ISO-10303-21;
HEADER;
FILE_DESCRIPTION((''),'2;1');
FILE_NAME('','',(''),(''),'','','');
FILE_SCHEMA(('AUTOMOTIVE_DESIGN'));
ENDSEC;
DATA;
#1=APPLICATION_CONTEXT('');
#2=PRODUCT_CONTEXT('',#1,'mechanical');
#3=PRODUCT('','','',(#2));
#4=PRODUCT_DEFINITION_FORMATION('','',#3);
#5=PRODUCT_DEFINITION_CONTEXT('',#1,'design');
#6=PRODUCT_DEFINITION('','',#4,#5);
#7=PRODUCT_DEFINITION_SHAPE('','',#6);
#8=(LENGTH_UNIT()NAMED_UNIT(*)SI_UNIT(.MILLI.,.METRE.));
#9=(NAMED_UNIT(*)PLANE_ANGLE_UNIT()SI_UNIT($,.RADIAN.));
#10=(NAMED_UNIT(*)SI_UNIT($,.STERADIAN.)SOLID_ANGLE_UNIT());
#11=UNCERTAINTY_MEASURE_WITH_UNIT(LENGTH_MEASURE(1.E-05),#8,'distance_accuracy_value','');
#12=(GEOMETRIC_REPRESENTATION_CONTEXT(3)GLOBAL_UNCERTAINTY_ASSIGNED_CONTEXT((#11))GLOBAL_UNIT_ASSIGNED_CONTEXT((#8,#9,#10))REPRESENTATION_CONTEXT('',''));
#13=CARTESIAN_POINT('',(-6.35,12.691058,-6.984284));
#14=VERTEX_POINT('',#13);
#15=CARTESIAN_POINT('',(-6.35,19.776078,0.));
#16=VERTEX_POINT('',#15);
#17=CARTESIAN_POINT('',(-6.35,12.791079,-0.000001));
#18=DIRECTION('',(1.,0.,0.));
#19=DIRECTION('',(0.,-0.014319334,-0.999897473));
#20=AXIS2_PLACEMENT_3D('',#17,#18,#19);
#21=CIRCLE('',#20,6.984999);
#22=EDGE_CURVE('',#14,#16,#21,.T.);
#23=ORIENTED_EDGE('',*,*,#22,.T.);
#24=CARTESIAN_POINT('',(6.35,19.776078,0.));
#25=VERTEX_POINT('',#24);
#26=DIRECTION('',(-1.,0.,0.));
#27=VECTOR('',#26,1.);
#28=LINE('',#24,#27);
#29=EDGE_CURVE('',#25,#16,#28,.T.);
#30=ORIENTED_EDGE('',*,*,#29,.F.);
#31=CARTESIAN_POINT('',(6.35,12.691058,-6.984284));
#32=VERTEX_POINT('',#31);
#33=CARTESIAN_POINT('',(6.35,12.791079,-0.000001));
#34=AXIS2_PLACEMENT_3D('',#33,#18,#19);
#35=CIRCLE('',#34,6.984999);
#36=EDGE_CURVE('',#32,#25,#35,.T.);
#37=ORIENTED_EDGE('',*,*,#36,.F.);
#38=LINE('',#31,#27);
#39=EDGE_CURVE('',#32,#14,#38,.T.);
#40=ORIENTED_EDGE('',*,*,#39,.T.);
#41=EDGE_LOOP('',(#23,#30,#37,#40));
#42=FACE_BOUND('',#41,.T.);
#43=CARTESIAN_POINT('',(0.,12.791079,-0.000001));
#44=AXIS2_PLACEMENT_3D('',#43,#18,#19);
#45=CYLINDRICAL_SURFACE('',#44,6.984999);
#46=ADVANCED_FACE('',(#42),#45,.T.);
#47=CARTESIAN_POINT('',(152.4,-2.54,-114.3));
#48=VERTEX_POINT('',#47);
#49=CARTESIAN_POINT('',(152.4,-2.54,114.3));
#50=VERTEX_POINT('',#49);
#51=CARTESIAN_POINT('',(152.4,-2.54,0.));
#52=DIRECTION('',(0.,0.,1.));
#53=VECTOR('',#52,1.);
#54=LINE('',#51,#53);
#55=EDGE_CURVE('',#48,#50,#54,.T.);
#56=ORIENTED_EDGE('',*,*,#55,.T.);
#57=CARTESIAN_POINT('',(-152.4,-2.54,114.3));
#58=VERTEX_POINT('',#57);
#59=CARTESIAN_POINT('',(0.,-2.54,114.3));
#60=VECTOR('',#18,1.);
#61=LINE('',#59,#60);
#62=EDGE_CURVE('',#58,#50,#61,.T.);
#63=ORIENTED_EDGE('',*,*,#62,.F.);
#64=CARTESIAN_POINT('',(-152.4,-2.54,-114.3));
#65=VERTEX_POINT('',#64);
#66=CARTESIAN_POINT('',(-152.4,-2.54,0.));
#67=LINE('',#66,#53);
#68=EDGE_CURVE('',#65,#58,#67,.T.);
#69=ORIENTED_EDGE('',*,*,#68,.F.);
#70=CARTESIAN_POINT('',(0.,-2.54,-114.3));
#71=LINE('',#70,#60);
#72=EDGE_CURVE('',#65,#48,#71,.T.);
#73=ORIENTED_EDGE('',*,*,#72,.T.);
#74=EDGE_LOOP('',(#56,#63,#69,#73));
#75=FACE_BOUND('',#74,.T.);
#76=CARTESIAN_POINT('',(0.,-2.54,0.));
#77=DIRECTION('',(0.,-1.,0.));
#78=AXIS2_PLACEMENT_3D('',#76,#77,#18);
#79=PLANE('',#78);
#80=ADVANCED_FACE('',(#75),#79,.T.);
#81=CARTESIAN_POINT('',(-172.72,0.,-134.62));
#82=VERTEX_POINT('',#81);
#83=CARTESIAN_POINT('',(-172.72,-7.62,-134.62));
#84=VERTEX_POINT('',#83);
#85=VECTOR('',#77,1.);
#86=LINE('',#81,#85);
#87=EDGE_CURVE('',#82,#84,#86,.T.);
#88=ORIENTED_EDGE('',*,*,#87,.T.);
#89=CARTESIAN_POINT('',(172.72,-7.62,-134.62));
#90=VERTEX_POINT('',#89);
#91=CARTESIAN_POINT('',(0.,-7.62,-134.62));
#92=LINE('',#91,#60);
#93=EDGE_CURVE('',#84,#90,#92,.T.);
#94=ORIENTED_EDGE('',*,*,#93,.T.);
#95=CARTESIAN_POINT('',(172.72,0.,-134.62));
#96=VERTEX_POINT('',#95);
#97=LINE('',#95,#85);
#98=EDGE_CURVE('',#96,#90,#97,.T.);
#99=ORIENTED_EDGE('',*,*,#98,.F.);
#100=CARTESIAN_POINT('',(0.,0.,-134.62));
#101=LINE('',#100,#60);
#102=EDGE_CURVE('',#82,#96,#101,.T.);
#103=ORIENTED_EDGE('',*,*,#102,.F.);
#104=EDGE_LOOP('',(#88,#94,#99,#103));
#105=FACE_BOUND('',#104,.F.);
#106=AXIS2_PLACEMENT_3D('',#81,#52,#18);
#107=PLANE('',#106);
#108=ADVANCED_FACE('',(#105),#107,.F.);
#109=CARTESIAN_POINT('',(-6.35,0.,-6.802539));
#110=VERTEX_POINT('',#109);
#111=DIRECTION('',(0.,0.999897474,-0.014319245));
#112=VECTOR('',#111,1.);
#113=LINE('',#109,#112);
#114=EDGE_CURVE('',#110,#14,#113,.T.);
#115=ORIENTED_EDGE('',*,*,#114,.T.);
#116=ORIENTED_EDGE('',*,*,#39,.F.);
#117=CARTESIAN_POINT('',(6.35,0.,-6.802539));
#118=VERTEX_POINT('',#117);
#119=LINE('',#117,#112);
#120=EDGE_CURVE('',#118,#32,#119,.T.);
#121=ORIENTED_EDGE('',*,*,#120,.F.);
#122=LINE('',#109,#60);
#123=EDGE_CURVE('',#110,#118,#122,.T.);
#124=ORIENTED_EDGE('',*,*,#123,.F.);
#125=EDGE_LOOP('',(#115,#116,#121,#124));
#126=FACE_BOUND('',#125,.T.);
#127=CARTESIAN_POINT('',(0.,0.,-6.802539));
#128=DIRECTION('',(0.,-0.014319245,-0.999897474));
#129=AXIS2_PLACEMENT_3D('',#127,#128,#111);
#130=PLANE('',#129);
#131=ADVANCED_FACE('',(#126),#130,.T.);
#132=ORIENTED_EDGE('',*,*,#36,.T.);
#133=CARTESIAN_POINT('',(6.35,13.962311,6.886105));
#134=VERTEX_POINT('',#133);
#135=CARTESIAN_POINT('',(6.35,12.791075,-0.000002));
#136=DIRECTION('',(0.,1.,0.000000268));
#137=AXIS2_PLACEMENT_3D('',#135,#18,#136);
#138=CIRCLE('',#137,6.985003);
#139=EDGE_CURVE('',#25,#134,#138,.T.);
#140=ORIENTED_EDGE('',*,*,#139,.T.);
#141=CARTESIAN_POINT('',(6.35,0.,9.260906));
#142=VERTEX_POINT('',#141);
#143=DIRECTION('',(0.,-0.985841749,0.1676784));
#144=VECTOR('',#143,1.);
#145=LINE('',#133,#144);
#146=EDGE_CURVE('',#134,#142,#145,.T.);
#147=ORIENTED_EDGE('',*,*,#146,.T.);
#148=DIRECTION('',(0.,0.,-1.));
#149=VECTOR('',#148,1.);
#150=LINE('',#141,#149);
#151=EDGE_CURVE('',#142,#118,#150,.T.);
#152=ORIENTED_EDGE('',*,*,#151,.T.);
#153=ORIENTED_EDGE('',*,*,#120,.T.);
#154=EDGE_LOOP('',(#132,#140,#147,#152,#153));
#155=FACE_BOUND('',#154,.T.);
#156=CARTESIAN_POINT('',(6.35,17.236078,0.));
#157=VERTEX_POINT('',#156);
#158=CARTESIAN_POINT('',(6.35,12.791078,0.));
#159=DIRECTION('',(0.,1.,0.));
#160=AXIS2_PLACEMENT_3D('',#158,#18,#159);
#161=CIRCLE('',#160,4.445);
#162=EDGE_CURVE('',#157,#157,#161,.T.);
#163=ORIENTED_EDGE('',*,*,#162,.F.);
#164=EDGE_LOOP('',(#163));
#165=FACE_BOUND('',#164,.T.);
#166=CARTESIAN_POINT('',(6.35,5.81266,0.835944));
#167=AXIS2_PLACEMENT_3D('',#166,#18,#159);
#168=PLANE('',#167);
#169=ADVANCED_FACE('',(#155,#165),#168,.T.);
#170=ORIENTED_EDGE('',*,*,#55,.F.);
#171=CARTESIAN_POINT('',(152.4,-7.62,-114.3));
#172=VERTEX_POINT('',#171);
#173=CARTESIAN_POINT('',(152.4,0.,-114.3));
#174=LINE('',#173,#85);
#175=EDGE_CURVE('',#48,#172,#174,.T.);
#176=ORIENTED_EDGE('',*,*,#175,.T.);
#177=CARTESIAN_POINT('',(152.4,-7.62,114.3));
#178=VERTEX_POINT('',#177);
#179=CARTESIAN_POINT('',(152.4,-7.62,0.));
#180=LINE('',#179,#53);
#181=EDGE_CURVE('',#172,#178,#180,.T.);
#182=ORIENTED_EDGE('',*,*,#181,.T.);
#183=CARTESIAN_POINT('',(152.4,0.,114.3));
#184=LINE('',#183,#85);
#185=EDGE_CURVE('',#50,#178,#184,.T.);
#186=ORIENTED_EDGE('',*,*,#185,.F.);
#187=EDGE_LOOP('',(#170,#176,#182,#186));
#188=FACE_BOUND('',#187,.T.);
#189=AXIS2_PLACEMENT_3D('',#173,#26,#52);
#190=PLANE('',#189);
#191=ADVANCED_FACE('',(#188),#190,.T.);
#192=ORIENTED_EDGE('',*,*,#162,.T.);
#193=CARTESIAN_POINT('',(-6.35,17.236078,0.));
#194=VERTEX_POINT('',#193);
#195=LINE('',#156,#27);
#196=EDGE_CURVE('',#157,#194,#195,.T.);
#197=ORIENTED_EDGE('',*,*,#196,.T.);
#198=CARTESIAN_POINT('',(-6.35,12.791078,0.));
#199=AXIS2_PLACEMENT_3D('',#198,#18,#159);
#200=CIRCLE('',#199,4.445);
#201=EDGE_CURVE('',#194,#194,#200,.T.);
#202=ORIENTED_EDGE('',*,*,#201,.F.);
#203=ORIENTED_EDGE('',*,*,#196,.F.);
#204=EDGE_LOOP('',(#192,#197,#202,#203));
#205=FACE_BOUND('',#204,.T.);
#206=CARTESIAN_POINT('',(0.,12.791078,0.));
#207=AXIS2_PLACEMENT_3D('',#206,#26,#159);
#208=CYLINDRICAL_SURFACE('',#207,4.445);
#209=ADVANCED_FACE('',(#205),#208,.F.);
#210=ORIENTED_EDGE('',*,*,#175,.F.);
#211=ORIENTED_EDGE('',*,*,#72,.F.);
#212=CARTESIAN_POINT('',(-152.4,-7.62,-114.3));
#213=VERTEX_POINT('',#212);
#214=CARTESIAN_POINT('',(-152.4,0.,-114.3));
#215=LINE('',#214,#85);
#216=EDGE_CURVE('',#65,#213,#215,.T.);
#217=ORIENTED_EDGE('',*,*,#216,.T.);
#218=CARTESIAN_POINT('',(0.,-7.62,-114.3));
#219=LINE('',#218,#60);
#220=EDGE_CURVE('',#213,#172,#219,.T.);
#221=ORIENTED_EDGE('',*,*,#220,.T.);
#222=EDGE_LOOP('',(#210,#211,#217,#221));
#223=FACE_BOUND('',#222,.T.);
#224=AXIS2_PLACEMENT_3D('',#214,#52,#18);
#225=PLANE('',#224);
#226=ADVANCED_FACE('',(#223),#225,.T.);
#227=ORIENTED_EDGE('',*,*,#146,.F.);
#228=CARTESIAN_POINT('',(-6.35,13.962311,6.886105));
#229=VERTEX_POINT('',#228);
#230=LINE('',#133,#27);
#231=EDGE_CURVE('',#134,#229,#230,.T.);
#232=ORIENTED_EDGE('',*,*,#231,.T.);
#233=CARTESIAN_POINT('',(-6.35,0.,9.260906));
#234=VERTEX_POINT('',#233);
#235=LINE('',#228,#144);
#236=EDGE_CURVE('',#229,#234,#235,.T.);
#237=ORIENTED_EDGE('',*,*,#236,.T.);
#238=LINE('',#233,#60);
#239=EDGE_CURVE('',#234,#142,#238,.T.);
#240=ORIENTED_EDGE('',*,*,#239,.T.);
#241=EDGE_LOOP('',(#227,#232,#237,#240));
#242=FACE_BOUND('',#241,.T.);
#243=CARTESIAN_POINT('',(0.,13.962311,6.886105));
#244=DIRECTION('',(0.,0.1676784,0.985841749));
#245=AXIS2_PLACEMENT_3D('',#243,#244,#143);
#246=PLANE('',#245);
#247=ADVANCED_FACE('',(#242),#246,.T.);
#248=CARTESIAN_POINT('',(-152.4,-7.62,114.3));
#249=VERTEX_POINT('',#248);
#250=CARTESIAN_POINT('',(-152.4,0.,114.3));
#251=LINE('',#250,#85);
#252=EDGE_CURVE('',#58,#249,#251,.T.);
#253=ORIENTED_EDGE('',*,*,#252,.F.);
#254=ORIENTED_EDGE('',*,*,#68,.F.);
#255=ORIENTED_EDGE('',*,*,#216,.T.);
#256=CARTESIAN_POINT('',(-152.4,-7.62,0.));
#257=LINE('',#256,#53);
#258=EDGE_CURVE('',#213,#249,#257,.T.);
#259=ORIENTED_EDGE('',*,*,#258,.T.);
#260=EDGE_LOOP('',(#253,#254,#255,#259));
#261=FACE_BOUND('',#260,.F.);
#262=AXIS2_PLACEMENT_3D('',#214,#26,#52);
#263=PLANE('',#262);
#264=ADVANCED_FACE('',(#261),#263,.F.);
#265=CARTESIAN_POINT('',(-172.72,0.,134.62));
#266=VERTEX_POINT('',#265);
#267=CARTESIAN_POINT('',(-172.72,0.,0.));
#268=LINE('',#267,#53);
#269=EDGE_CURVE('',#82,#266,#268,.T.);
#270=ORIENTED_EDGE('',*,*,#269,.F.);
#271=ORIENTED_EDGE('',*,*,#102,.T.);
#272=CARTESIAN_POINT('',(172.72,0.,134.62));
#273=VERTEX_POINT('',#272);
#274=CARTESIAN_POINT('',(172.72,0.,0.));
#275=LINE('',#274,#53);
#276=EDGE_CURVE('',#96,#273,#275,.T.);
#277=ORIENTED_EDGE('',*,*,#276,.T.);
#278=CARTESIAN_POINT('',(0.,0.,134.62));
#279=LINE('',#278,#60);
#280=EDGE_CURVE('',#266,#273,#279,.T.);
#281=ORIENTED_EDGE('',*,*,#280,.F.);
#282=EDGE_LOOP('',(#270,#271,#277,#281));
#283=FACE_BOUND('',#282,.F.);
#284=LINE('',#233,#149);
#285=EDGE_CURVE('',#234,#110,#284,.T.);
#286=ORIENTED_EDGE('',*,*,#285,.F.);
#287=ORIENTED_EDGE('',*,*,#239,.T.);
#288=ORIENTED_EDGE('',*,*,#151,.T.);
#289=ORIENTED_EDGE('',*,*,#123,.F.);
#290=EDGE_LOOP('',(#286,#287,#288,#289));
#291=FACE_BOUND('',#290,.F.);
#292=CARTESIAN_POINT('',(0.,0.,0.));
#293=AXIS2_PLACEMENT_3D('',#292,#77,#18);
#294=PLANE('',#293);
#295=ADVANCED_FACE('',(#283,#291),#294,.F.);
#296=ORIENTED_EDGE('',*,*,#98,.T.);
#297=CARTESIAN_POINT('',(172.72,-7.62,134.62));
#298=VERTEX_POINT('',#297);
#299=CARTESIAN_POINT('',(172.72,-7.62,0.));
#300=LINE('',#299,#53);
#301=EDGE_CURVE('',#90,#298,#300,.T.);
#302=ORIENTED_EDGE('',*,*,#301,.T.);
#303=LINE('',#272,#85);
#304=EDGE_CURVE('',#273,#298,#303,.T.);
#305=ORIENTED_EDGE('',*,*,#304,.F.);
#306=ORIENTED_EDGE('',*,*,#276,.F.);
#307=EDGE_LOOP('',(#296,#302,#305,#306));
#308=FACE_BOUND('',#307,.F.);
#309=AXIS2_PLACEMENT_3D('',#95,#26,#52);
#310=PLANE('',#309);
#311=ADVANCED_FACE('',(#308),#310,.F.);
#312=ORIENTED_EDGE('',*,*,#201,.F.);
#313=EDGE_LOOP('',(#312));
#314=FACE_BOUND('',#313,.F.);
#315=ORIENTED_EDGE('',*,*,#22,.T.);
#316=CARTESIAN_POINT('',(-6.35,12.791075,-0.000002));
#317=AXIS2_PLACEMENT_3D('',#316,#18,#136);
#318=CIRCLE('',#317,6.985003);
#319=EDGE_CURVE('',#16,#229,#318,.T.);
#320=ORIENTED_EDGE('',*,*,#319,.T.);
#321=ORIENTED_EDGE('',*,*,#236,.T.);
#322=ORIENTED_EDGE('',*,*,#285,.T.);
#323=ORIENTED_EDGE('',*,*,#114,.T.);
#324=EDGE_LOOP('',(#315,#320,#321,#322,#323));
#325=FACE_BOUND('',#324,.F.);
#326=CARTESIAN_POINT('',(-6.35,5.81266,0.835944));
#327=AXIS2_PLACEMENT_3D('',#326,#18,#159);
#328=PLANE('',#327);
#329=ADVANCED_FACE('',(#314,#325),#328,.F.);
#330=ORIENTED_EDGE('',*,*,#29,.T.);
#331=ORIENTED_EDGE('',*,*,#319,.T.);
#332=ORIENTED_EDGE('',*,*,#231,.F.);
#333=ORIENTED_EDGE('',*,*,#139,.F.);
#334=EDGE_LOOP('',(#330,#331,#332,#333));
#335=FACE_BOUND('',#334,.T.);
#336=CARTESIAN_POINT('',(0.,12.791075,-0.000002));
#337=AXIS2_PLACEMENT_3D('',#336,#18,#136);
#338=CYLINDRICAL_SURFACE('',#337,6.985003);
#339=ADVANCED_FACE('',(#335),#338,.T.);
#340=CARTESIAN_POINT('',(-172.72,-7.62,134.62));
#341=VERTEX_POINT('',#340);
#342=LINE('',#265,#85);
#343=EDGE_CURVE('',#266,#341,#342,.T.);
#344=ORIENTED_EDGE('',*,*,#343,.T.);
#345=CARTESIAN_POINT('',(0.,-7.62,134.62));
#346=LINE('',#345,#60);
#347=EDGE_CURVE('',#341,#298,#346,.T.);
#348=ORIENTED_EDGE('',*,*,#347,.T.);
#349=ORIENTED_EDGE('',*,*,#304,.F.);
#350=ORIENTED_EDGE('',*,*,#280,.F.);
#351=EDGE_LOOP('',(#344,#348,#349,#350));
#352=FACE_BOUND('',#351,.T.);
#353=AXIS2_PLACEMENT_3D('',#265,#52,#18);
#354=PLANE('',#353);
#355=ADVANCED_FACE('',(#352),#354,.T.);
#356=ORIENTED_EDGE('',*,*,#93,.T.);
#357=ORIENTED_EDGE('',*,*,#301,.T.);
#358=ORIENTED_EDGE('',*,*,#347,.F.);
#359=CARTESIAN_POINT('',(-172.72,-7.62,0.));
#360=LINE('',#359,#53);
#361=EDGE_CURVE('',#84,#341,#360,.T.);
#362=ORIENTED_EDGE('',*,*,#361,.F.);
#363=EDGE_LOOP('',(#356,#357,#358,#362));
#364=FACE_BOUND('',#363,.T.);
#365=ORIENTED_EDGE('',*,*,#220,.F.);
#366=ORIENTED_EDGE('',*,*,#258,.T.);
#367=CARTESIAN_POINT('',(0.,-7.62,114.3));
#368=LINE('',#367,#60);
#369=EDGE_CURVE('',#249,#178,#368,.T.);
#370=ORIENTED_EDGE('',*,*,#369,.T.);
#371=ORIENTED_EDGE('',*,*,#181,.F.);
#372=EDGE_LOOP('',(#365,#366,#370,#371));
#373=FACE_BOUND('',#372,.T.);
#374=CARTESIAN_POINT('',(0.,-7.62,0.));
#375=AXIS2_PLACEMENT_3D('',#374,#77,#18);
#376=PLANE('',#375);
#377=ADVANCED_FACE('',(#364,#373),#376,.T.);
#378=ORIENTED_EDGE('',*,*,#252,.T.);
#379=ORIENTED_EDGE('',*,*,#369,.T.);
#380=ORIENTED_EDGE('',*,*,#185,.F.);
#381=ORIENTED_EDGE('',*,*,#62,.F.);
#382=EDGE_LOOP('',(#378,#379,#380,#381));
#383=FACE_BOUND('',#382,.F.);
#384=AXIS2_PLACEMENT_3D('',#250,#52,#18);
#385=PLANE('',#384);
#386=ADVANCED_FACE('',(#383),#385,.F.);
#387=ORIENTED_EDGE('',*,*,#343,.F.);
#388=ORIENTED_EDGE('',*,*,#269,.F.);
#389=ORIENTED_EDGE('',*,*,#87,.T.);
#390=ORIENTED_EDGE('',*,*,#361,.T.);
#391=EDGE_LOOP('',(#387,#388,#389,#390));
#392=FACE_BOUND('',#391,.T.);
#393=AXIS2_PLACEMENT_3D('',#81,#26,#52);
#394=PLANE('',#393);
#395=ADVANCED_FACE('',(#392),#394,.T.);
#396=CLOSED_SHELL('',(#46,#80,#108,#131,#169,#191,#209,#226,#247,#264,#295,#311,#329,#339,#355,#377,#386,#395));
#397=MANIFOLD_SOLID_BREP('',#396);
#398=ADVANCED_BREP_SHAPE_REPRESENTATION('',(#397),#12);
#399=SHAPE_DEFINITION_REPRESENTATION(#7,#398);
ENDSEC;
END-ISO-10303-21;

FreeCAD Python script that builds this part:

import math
import FreeCAD as App
import Part
import Sketcher
from FreeCAD import Vector
Q = App.Units.Quantity


def add_polygon(sketch, points):
    """Adds a closed chain of lines whose ends are joined by coincident constraints."""
    first, n = sketch.GeometryCount, len(points)
    for a, b in zip(points, points[1:] + points[:1]):
        sketch.addGeometry(Part.LineSegment(App.Vector(*a, 0), App.Vector(*b, 0)), False)
    for i in range(n):
        sketch.addConstraint(Sketcher.Constraint("Coincident", first + i, 2, first + (i + 1) % n, 1))

doc = App.newDocument("Part")
params = doc.addObject("Spreadsheet::Sheet", "Params")
for row, (alias, value) in enumerate([
    ("sketch1_width", "12 in"),
    ("sketch1_height", "9 in"),
    ("pad1_length", "0.1 in"),
    ("sketch2_width", "12 in"),
    ("sketch2_height", "9 in"),
    ("sketch2_width2", "13.6 in"),
    ("sketch2_height2", "10.6 in"),
    ("pad2_length", "0.3 in"),
    ("sketch3_diameter", "0.35 in"),
    ("sketch3_radius", "0.275 in"),
    ("sketch3_radius2", "0.2750001 in"),
    ("pad3_length", "0.5 in"),
], start=1):
    params.set(f"A{row}", alias)
    params.set(f"B{row}", "=" + value)
    params.setAlias(f"B{row}", alias)

body = doc.addObject("PartDesign::Body", "Body")

sketch1 = doc.addObject("Sketcher::SketchObject", "Sketch")
body.addObject(sketch1)
sketch1.AttachmentSupport = (doc.XZ_Plane, [""])
sketch1.MapMode = "FlatFace"
add_polygon(sketch1, [(-152.4, 114.3), (-152.4, -114.3), (152.4, -114.3), (152.4, 114.3)])
sketch1.addConstraint([
    Sketcher.Constraint("Vertical", 0),
    Sketcher.Constraint("Horizontal", 1),
    Sketcher.Constraint("Vertical", 2),
    Sketcher.Constraint("Horizontal", 3),
    Sketcher.Constraint("Symmetric", 0, 2, 2, 2, -1, 1),
    Sketcher.Constraint("DistanceX", 1, 1, 1, 2, Q("12 in")),
    Sketcher.Constraint("DistanceY", 0, 2, 0, 1, Q("9 in")),
])
sketch1.setExpression("Constraints[9]", "Params.sketch1_width")
sketch1.setExpression("Constraints[10]", "Params.sketch1_height")
pad1 = doc.addObject("PartDesign::Pad", "Pad")
body.addObject(pad1)
pad1.Profile = sketch1
pad1.setExpression("Length", "Params.pad1_length")

sketch2 = doc.addObject("Sketcher::SketchObject", "Sketch001")
body.addObject(sketch2)
sketch2.AttachmentSupport = (doc.XZ_Plane, [""])
sketch2.MapMode = "FlatFace"
add_polygon(sketch2, [(-172.72, 134.62), (-172.72, -134.62), (172.72, -134.62), (172.72, 134.62)])
add_polygon(sketch2, [(152.4, -114.3), (-152.4, -114.3), (-152.4, 114.3), (152.4, 114.3)])
sketch2.addConstraint([
    Sketcher.Constraint("Vertical", 0),
    Sketcher.Constraint("Horizontal", 1),
    Sketcher.Constraint("Vertical", 2),
    Sketcher.Constraint("Horizontal", 3),
    Sketcher.Constraint("Horizontal", 4),
    Sketcher.Constraint("Vertical", 5),
    Sketcher.Constraint("Horizontal", 6),
    Sketcher.Constraint("Vertical", 7),
    Sketcher.Constraint("Symmetric", 0, 2, 2, 2, -1, 1),
    Sketcher.Constraint("Symmetric", 4, 2, 6, 2, -1, 1),
    Sketcher.Constraint("DistanceX", 4, 2, 4, 1, Q("12 in")),
    Sketcher.Constraint("DistanceY", 5, 1, 5, 2, Q("9 in")),
    Sketcher.Constraint("DistanceX", 1, 1, 1, 2, Q("13.6 in")),
    Sketcher.Constraint("DistanceY", 0, 2, 0, 1, Q("10.6 in")),
])
sketch2.setExpression("Constraints[18]", "Params.sketch2_width")
sketch2.setExpression("Constraints[19]", "Params.sketch2_height")
sketch2.setExpression("Constraints[20]", "Params.sketch2_width2")
sketch2.setExpression("Constraints[21]", "Params.sketch2_height2")
pad2 = doc.addObject("PartDesign::Pad", "Pad001")
body.addObject(pad2)
pad2.Profile = sketch2
pad2.setExpression("Length", "Params.pad2_length")

sketch3 = doc.addObject("Sketcher::SketchObject", "Sketch002")
body.addObject(sketch3)
sketch3.AttachmentSupport = (doc.YZ_Plane, [""])
sketch3.MapMode = "FlatFace"
sketch3.addGeometry([
    Part.LineSegment(Vector(13.962311, 6.886105, 0), Vector(0, 9.260906, 0)),
    Part.LineSegment(Vector(0, 9.260906, 0), Vector(0, -6.802539, 0)),
    Part.LineSegment(Vector(0, -6.802539, 0), Vector(12.691058, -6.984284, 0)),
    Part.ArcOfCircle(Part.Circle(Vector(12.791079, -0.000001, 0), Vector(0, 0, 1), 6.984999), math.radians(-90.820465), math.radians(0.000006)),
    Part.ArcOfCircle(Part.Circle(Vector(12.791075, -0.000002, 0), Vector(0, 0, 1), 6.985003), math.radians(0.000015), math.radians(80.347124)),
    Part.Circle(Vector(12.791078, 0, 0), Vector(0, 0, 1), 4.445),
], False)
sketch3.addConstraint([
    Sketcher.Constraint("Coincident", 0, 2, 1, 1),
    Sketcher.Constraint("Coincident", 1, 2, 2, 1),
    Sketcher.Constraint("Tangent", 2, 2, 3, 1),
    Sketcher.Constraint("Tangent", 3, 2, 4, 1),
    Sketcher.Constraint("Tangent", 4, 2, 0, 1),
    Sketcher.Constraint("Vertical", 1),
    Sketcher.Constraint("Coincident", 5, 3, 3, 3),
    Sketcher.Constraint("PointOnObject", 3, 3, -1),
    Sketcher.Constraint("PointOnObject", 0, 2, -2),
    Sketcher.Constraint("PointOnObject", 3, 2, -1),
    Sketcher.Constraint("Diameter", 5, Q("0.35 in")),
    Sketcher.Constraint("Radius", 3, Q("0.275 in")),
    Sketcher.Constraint("Radius", 4, Q("0.2750001 in")),
    Sketcher.Constraint("Distance", 0, 14.162832),
    Sketcher.Constraint("Distance", 2, 12.692359),
    Sketcher.Constraint("DistanceY", 1, 2, 1, 1, 16.063445),
])
sketch3.setExpression("Constraints[10]", "Params.sketch3_diameter")
sketch3.setExpression("Constraints[11]", "Params.sketch3_radius")
sketch3.setExpression("Constraints[12]", "Params.sketch3_radius2")
pad3 = doc.addObject("PartDesign::Pad", "Pad002")
body.addObject(pad3)
pad3.Profile = sketch3
pad3.setExpression("Length", "Params.pad3_length")
pad3.Midplane = True

doc.recompute()
